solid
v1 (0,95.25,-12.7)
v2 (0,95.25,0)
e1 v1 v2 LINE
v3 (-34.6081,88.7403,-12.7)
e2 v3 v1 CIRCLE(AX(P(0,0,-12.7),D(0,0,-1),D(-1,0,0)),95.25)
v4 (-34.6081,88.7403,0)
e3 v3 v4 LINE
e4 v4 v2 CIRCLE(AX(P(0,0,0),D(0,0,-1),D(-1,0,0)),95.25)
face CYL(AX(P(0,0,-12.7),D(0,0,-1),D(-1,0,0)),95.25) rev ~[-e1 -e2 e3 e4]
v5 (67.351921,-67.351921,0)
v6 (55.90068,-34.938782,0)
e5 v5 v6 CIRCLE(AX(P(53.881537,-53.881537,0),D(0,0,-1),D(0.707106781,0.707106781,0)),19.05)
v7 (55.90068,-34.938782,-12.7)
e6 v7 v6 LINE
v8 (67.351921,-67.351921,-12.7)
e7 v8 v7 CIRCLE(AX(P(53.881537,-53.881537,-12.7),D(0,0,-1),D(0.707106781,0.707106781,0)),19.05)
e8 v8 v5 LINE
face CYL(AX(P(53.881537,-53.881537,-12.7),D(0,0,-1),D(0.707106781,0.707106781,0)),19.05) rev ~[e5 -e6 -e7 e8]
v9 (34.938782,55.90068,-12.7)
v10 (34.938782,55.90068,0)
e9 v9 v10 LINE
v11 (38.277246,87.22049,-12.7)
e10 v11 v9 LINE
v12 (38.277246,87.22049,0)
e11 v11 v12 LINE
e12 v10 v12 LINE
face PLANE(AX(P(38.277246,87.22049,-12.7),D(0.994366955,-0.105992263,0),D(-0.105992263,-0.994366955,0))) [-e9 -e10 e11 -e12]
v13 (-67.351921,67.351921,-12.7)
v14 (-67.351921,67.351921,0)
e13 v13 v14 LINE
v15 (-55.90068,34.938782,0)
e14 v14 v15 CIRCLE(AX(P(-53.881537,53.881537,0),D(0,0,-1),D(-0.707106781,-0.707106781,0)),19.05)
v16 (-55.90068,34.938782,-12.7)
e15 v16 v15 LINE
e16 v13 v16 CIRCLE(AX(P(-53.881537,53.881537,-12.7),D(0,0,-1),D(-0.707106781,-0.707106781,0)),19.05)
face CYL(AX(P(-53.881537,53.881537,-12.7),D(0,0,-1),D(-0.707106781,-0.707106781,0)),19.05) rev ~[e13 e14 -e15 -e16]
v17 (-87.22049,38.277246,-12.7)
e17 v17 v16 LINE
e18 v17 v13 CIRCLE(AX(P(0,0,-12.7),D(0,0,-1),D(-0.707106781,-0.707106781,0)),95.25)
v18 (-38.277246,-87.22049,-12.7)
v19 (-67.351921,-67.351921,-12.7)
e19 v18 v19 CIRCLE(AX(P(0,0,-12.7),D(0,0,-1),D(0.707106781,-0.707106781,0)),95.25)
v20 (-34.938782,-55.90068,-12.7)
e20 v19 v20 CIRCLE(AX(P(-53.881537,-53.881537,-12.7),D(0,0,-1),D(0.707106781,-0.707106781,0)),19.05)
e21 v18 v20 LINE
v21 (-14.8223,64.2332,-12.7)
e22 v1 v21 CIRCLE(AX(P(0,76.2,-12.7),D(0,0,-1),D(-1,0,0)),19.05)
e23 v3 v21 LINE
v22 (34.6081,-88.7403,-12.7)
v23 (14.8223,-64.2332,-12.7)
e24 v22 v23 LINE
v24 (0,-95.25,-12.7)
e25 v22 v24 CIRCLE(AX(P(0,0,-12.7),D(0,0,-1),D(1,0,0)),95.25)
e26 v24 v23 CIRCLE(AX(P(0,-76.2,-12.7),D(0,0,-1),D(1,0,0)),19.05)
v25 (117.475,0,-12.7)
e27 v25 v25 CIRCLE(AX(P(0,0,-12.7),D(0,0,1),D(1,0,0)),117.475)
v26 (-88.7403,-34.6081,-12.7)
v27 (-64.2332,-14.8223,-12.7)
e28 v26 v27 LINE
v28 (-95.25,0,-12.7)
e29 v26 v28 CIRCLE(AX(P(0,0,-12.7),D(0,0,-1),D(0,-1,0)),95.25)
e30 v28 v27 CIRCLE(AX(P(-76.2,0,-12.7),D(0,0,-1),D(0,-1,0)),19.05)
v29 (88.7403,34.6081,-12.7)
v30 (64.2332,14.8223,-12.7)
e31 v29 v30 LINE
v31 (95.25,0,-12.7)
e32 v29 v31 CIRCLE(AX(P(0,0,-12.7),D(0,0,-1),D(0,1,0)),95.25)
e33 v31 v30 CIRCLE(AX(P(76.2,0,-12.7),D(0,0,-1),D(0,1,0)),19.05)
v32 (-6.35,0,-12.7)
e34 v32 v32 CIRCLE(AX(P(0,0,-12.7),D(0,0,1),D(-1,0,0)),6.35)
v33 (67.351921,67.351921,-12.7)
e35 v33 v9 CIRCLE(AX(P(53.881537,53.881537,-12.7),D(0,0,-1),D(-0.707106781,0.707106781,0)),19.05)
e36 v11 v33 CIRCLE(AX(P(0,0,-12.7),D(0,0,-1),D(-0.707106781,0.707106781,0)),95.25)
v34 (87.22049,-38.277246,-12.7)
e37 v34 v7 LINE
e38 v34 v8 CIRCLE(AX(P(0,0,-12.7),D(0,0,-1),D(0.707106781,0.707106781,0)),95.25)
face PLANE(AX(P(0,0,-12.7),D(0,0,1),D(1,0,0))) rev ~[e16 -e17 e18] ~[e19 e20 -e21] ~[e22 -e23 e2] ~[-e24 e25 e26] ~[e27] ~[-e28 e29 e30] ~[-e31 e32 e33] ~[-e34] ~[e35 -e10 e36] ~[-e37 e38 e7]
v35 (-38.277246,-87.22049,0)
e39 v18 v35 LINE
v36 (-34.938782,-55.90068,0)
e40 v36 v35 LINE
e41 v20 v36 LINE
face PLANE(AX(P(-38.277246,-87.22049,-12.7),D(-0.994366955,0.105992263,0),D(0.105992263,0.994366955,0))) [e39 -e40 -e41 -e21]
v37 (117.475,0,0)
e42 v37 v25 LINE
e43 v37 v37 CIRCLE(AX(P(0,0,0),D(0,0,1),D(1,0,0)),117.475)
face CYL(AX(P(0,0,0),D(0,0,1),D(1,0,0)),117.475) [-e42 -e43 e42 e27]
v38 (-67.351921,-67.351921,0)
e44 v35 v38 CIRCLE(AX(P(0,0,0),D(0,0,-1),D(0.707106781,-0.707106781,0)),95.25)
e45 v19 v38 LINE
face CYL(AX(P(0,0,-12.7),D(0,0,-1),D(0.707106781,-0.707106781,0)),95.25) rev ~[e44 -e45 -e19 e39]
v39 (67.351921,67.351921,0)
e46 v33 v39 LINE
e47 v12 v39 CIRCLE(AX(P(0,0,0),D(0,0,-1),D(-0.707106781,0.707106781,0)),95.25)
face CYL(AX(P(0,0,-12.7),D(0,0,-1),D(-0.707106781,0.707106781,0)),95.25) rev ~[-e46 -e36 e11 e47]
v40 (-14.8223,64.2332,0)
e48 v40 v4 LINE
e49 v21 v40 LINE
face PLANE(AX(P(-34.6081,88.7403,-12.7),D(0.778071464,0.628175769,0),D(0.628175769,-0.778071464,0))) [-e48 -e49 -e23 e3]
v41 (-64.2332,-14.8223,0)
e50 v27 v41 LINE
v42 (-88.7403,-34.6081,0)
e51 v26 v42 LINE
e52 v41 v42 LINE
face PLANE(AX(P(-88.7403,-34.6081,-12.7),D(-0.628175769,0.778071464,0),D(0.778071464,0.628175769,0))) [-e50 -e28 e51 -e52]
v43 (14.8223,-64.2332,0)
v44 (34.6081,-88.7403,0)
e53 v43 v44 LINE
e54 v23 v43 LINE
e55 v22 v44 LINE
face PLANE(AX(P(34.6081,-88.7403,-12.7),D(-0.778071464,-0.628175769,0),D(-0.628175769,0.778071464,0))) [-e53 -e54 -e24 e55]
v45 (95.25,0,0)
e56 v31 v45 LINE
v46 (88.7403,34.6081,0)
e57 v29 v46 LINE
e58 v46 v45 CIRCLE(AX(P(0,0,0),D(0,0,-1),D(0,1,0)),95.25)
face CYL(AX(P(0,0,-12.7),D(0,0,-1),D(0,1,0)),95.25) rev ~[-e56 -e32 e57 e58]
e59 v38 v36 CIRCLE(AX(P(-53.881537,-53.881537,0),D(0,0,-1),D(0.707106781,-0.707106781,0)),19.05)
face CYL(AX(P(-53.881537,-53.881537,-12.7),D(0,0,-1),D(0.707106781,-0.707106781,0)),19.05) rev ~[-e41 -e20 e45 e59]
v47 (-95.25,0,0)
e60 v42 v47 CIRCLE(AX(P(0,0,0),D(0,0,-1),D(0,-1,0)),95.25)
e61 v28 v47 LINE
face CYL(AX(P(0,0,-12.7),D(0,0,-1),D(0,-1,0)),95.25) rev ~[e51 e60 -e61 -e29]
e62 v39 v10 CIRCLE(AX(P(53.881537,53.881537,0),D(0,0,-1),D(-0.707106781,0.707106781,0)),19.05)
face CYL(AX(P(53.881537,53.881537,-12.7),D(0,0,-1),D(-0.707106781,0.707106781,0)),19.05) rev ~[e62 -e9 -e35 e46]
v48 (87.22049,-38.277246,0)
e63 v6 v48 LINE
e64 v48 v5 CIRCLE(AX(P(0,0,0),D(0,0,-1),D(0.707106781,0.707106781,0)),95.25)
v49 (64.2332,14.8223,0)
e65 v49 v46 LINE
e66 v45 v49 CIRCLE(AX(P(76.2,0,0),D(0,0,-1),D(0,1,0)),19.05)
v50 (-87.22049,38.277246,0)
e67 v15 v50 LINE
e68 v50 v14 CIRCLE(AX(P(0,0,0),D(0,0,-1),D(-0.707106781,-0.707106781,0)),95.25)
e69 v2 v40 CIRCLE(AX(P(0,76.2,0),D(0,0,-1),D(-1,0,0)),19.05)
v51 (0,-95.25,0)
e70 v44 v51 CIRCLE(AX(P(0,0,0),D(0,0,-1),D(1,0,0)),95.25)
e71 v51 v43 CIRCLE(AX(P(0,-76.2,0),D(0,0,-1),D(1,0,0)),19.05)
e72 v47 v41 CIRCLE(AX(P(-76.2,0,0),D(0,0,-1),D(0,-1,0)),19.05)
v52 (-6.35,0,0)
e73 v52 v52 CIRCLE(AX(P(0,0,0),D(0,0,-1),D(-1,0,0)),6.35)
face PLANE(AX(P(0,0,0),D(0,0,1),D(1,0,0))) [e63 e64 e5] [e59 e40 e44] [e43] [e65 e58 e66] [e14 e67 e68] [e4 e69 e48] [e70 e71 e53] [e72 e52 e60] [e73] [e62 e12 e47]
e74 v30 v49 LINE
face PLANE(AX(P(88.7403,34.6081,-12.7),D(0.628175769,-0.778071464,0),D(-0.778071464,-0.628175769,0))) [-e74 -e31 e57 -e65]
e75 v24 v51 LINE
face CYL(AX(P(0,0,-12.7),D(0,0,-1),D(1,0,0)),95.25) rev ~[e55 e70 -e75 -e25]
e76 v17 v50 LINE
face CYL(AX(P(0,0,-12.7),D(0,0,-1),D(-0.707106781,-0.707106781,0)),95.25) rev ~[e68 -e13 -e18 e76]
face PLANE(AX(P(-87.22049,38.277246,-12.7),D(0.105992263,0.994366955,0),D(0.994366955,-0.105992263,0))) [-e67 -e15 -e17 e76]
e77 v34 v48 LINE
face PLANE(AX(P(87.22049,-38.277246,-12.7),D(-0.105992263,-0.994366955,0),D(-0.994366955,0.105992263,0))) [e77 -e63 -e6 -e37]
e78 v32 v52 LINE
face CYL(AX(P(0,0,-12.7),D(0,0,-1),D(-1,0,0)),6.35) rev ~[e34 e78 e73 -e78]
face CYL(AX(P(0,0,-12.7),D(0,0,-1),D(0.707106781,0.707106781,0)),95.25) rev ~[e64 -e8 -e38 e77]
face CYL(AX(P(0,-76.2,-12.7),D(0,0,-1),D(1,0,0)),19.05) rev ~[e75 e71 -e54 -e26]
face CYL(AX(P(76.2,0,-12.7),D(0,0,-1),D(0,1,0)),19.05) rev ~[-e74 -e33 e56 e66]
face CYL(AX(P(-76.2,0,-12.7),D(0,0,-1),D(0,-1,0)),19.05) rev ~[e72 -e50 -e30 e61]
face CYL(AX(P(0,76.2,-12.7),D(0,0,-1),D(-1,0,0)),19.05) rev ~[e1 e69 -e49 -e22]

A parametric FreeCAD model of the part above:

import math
import FreeCAD as App
import Part
import Sketcher
Q = App.Units.Quantity

doc = App.newDocument("Part")
body = doc.addObject("PartDesign::Body", "Body")

# Sketch on XY plane
sketch1 = body.newObject("Sketcher::SketchObject", "Sketch")
sketch1.AttachmentSupport = (doc.getObject("XY_Plane"), [""])
sketch1.MapMode = "FlatFace"
sketch1.addGeometry(Part.Circle(App.Vector(0, 0, 0), App.Vector(0, 0, 1), 117.475), False)
sketch1.addConstraint([
    Sketcher.Constraint("Coincident", 0, 3, -1, 1),
    Sketcher.Constraint("Diameter", 0, Q("9.25 in")),
])
pad1 = body.newObject("PartDesign::Pad", "Pad")
pad1.Profile = sketch1
pad1.Length = Q("0.5 in")
pad1.Reversed = True

# Sketch on XY plane
sketch2 = body.newObject("Sketcher::SketchObject", "Sketch001")
sketch2.AttachmentSupport = (doc.getObject("XY_Plane"), [""])
sketch2.MapMode = "FlatFace"
sketch2.AttachmentOffset = App.Placement(App.Vector(0, 0, -0.5 * 25.4), App.Rotation())
sketch2.addGeometry([
    Part.Circle(App.Vector(0, 0, 0), App.Vector(0, 0, 1), 6.35),
    Part.LineSegment(App.Vector(-14.8223, 64.2332, 0), App.Vector(-34.6081, 88.7403, 0)),
    Part.ArcOfCircle(Part.Circle(App.Vector(0, 0, 0), App.Vector(0, 0, 1), 95.25), math.radians(90), math.radians(111.305438)),
    Part.ArcOfCircle(Part.Circle(App.Vector(0, 76.2, 0), App.Vector(0, 0, 1), 19.05), math.radians(-141.08429), math.radians(90)),
], False)
sketch2.addConstraint([
    Sketcher.Constraint("Coincident", 1, 2, 2, 2),
    Sketcher.Constraint("Tangent", 2, 1, 3, 2),
    Sketcher.Constraint("Tangent", 3, 1, 1, 1),
    Sketcher.Constraint("Coincident", 0, 3, -1, 1),
    Sketcher.Constraint("Coincident", 2, 3, -1, 1),
    Sketcher.Constraint("PointOnObject", 3, 3, -2),
    Sketcher.Constraint("Diameter", 0, Q("0.5 in")),
    Sketcher.Constraint("Radius", 3, Q("0.75 in")),
    Sketcher.Constraint("Radius", 2, Q("3.75 in")),
    Sketcher.Constraint("Distance", 1, Q("31.4972 mm")),
])
pocket1 = body.newObject("PartDesign::Pocket", "Pocket")
pocket1.Profile = sketch2
pocket1.Type = "ThroughAll"
pocket1.Reversed = True
doc.recompute()

polarpattern = body.newObject("PartDesign::PolarPattern", "PolarPattern")
polarpattern.Originals = [pocket1]
polarpattern.Axis = (doc.getObject("Z_Axis"), [""])
polarpattern.Angle = 360
polarpattern.Occurrences = 8
body.Tip = polarpattern

doc.recompute()
